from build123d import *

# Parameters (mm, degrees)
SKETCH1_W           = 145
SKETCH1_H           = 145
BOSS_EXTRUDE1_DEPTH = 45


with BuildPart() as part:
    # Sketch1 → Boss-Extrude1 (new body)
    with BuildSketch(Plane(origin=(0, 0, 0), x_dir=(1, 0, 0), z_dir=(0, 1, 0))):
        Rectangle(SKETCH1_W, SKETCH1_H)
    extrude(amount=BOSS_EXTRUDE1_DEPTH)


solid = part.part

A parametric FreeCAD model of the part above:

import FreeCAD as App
import Part
import Sketcher
from FreeCAD import Vector
Q = App.Units.Quantity


def add_polygon(sketch, points):
    """Adds a closed chain of lines whose ends are joined by coincident constraints."""
    first, n = sketch.GeometryCount, len(points)
    for a, b in zip(points, points[1:] + points[:1]):
        sketch.addGeometry(Part.LineSegment(App.Vector(*a, 0), App.Vector(*b, 0)), False)
    for i in range(n):
        sketch.addConstraint(Sketcher.Constraint("Coincident", first + i, 2, first + (i + 1) % n, 1))

doc = App.newDocument("Part")
body = doc.addObject("PartDesign::Body", "Body")

sketch1 = body.newObject("Sketcher::SketchObject", "Sketch")
sketch1.AttachmentSupport = (doc.getObject("XZ_Plane"), [""])
sketch1.MapMode = "FlatFace"
add_polygon(sketch1, [(-72, -72), (-72, 72), (72, 72), (72, -72)])
sketch1.addConstraint([
    Sketcher.Constraint("Vertical", 0),
    Sketcher.Constraint("Horizontal", 1),
    Sketcher.Constraint("Vertical", 2),
    Sketcher.Constraint("Horizontal", 3),
    Sketcher.Constraint("Symmetric", 0, 2, 2, 2, -1, 1),
    Sketcher.Constraint("Equal", 3, 0),
    Sketcher.Constraint("DistanceX", 1, 1, 1, 2, Q("145 mm")),
])
pad1 = body.newObject("PartDesign::Pad", "Pad")
pad1.Profile = sketch1
pad1.Length = 45
pad1.Reversed = True

doc.recompute()
